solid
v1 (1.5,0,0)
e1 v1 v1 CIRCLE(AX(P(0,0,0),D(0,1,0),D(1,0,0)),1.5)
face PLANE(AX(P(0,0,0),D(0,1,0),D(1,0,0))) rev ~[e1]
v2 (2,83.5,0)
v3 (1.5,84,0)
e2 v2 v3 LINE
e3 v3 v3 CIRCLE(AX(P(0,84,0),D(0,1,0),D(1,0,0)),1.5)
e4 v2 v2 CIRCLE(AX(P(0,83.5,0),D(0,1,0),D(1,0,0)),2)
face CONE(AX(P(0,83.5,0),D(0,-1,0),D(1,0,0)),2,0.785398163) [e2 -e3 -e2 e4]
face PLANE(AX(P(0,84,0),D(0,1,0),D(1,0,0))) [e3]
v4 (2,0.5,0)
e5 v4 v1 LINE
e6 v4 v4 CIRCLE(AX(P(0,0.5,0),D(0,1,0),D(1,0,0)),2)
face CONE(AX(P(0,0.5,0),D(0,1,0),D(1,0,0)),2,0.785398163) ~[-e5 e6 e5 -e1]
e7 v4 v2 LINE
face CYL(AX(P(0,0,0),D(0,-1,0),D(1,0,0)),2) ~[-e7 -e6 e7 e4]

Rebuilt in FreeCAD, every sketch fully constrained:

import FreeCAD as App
import Part
import Sketcher

V = App.Vector
Q = App.Units.Quantity


def edges_at(feature, points):
    """Names of the edges that pass closest to the given points."""
    edges = feature.Shape.Edges
    near = lambda p: min(range(len(edges)), key=lambda i: edges[i].distToShape(Part.Vertex(*p))[0])
    return sorted({f"Edge{near(p) + 1}" for p in points})

doc = App.newDocument("Part")
params = doc.addObject("Spreadsheet::Sheet", "Params")
for row, (alias, value) in enumerate([
    ("sketch1_diameter", "4 mm"),
    ("pad1_length", "84 mm"),
    ("chamfer_size", "0.5 mm"),
], start=1):
    params.set(f"A{row}", alias)
    params.set(f"B{row}", "=" + value)
    params.setAlias(f"B{row}", alias)

body = doc.addObject("PartDesign::Body", "Body")

sketch1 = body.newObject("Sketcher::SketchObject", "Sketch")
sketch1.AttachmentSupport = (doc.getObject("XZ_Plane"), [""])
sketch1.MapMode = "FlatFace"
sketch1.addGeometry(Part.Circle(V(0, 0, 0), V(0, 0, 1), 2), False)
sketch1.addConstraint(Sketcher.Constraint("Coincident", 0, 3, -1, 1))
sketch1.addConstraint(Sketcher.Constraint("Diameter", 0, Q("4 mm")))
sketch1.setExpression("Constraints[1]", "Params.sketch1_diameter")
pad1 = body.newObject("PartDesign::Pad", "Pad")
pad1.Profile = sketch1
pad1.setExpression("Length", "Params.pad1_length")
pad1.Reversed = True
doc.recompute()

chamfer = body.newObject("PartDesign::Chamfer", "Chamfer")
chamfer.Base = (pad1, edges_at(pad1, [(-2, 0, 0), (-2, 84, 0)]))
chamfer.setExpression("Size", "Params.chamfer_size")

doc.recompute()
